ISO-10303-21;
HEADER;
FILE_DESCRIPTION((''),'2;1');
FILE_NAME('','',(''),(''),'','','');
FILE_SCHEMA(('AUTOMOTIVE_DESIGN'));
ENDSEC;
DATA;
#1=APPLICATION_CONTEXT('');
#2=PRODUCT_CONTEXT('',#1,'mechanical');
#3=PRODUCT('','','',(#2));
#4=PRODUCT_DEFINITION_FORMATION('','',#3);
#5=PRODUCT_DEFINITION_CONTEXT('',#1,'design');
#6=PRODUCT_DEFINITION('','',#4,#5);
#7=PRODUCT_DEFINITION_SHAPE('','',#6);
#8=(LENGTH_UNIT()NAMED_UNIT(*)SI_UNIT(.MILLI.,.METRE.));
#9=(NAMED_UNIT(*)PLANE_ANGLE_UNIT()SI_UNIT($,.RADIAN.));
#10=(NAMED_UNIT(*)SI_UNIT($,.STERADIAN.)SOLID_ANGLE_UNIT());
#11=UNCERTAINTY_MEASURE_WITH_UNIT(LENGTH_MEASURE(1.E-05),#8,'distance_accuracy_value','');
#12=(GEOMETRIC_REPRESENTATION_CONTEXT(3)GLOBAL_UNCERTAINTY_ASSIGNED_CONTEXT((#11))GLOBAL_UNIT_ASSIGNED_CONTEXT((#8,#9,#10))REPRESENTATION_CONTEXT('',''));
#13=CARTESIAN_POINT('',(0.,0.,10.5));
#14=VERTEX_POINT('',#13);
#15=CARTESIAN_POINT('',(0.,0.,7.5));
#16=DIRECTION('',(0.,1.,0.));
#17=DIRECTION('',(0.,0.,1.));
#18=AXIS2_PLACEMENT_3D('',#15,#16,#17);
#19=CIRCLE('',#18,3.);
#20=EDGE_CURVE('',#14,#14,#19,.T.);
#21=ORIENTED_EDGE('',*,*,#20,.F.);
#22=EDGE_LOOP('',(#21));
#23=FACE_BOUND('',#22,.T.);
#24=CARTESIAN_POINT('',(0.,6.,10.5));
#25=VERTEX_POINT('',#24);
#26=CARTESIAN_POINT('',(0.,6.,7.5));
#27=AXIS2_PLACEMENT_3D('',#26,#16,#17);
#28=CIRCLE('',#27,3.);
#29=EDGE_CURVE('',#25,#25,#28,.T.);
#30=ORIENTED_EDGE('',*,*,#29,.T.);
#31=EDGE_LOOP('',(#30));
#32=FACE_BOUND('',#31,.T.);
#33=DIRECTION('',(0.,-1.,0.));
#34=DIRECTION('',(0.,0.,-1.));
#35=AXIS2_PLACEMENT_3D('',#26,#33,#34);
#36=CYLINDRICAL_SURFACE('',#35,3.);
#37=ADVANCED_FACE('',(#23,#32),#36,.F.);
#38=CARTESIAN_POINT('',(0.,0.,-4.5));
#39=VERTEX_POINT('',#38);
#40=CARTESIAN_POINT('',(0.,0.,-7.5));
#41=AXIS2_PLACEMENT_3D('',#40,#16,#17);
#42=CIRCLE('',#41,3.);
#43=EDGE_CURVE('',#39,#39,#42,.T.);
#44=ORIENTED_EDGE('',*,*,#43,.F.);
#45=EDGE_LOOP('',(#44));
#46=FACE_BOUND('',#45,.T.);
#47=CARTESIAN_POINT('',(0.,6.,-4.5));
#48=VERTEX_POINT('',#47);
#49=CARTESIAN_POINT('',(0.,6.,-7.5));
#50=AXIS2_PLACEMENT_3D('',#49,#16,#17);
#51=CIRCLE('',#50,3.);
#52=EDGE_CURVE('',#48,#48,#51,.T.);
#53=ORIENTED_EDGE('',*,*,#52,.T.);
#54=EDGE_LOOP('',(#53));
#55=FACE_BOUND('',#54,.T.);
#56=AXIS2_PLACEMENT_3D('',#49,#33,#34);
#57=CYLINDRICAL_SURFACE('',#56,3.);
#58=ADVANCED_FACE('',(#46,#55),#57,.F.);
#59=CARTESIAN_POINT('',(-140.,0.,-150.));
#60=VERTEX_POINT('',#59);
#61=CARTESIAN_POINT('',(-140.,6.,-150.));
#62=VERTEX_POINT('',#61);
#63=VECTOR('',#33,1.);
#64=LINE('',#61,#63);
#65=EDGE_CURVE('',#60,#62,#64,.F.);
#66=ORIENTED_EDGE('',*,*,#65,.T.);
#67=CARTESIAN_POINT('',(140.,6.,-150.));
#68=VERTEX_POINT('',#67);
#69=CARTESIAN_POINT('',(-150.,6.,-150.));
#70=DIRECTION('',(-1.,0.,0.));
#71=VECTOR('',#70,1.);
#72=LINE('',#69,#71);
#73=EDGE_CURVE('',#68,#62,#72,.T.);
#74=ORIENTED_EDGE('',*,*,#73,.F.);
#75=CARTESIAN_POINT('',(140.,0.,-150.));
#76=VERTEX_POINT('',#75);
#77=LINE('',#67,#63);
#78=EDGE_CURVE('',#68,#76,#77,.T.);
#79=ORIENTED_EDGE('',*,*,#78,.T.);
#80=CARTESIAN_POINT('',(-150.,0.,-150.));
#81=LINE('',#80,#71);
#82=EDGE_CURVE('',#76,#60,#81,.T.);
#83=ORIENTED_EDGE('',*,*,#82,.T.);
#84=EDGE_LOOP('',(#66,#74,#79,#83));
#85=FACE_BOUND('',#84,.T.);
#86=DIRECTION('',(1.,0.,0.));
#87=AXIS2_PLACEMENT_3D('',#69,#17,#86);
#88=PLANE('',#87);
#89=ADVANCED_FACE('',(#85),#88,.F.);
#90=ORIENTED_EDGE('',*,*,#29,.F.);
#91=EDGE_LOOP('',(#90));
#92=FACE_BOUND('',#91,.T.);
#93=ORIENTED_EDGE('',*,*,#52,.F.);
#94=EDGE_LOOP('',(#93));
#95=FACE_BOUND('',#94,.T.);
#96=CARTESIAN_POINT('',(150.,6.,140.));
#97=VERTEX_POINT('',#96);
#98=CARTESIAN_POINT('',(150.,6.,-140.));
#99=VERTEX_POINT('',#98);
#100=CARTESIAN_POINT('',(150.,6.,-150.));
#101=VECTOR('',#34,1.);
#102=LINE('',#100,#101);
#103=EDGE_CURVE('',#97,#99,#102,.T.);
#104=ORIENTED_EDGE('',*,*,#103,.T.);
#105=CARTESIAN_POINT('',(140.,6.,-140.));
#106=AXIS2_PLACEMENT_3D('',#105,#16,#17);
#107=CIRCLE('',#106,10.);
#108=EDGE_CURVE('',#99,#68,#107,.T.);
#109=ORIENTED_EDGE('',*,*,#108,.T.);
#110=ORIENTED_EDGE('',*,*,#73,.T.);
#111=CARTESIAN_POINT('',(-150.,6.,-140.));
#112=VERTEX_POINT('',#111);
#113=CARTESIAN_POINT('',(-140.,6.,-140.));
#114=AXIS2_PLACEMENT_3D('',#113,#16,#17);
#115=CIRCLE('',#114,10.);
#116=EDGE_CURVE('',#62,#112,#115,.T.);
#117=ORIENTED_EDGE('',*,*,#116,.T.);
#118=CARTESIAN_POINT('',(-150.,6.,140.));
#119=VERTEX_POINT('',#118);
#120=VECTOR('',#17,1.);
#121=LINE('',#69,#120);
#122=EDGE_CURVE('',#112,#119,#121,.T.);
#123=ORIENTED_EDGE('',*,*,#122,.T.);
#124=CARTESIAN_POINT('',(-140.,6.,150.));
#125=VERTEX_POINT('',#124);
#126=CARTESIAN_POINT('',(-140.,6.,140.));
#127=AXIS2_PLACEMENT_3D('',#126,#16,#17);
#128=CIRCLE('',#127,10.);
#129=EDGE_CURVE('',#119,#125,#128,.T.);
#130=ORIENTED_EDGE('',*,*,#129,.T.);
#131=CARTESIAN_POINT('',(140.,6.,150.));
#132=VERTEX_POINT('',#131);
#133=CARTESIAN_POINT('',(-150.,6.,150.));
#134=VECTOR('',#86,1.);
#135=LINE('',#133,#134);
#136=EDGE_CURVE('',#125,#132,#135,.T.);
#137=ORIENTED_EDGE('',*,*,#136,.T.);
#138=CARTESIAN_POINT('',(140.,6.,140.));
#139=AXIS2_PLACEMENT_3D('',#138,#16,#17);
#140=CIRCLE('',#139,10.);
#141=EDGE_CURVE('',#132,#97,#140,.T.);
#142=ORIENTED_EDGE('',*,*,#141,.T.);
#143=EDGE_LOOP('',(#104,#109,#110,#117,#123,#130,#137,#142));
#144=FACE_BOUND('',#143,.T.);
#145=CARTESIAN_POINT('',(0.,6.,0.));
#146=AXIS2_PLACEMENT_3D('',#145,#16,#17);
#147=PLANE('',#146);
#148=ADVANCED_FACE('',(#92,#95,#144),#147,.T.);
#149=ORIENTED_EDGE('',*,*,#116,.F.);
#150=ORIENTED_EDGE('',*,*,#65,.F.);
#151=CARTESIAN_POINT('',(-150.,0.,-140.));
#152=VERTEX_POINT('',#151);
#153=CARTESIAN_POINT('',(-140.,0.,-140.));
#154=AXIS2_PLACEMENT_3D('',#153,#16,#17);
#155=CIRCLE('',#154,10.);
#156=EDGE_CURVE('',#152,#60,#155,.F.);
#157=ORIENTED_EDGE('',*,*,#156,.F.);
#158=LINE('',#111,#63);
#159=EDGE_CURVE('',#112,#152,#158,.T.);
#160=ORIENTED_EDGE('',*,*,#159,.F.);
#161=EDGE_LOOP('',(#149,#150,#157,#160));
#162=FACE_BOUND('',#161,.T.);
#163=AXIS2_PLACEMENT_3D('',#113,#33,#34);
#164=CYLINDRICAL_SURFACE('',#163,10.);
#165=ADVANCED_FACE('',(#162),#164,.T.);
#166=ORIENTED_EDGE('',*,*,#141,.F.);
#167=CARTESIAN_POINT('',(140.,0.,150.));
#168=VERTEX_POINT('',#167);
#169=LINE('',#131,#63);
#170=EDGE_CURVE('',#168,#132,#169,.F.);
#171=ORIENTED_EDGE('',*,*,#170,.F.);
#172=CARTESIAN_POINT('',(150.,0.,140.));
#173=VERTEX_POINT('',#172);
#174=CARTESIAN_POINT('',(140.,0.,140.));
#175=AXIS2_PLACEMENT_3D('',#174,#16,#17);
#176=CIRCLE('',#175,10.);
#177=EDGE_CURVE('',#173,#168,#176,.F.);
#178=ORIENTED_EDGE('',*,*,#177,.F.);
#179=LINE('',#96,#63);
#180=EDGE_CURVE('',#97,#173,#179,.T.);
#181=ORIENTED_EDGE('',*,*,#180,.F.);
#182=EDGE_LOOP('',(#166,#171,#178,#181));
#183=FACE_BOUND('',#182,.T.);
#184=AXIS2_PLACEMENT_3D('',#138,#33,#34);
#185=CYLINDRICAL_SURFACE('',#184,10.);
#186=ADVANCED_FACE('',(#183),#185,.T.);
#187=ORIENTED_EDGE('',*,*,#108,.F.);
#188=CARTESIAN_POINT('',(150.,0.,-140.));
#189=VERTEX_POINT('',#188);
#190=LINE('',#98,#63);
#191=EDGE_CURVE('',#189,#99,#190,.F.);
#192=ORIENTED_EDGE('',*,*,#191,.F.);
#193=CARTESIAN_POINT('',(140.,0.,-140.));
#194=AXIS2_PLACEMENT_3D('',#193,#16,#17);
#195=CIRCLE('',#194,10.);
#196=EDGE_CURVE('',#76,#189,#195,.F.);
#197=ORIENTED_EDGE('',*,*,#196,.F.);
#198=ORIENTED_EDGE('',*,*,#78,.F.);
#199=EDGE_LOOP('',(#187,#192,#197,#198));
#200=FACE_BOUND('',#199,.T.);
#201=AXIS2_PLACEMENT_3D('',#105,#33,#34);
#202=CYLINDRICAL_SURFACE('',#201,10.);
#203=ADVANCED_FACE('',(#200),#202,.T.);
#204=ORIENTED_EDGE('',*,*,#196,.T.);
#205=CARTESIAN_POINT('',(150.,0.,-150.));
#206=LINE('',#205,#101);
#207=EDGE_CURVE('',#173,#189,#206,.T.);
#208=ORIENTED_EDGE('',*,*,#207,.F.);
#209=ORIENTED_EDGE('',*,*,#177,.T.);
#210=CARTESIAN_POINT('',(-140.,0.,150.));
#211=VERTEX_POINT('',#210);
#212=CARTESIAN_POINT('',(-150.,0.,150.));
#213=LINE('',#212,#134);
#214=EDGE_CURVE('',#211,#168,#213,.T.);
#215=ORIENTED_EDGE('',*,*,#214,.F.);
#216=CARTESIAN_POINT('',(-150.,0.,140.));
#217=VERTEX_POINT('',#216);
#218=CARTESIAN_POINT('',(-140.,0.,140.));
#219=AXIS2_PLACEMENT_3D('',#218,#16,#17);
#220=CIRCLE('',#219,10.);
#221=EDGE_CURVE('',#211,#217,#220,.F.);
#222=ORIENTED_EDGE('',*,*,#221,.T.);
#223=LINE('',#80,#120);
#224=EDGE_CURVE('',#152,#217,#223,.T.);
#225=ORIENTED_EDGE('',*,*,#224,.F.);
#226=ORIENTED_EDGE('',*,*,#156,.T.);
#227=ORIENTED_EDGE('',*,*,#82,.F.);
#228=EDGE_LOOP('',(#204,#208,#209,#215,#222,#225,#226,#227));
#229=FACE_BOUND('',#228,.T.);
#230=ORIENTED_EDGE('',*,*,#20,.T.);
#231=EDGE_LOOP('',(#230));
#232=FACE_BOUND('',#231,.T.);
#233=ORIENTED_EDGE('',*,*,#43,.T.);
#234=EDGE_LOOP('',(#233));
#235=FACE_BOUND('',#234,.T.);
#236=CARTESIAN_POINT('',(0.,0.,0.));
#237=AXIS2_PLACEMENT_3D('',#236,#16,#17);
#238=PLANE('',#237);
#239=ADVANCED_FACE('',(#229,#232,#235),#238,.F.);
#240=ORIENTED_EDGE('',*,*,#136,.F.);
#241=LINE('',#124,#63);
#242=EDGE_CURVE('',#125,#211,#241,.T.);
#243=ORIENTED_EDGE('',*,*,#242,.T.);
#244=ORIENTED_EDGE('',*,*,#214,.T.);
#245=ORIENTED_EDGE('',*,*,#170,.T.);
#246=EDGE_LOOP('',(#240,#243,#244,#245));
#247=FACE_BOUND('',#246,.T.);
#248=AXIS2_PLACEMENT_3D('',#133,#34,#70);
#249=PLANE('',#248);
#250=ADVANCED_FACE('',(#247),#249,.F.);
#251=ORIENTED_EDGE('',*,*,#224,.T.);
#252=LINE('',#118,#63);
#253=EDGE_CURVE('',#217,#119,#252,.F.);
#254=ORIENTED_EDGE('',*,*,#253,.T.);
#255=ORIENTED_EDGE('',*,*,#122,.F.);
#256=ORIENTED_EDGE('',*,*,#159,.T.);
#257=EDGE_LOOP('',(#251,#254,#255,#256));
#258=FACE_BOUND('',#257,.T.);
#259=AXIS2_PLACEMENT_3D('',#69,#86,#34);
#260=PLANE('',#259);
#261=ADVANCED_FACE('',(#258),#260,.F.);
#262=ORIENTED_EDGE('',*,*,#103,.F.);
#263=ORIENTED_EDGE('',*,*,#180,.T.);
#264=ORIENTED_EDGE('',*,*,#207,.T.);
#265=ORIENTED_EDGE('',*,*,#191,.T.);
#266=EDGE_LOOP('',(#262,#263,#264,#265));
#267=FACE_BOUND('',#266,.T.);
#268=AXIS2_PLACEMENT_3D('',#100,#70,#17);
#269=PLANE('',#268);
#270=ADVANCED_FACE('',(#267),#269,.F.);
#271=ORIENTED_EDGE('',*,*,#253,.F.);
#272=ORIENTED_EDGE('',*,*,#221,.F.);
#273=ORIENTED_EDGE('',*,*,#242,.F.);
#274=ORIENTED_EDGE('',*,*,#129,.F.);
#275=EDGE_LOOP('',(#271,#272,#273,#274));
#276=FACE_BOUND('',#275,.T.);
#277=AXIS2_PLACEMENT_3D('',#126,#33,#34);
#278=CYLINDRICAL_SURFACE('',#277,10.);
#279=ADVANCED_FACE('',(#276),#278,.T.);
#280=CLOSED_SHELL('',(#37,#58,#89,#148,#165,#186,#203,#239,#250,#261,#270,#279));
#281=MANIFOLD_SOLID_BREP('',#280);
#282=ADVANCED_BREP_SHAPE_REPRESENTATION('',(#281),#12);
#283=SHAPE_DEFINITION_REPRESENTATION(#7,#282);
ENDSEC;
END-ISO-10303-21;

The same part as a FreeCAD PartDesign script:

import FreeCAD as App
import Part
import Sketcher

V = App.Vector


def edges_at(feature, points):
    """Names of the edges that pass closest to the given points."""
    edges = feature.Shape.Edges
    near = lambda p: min(range(len(edges)), key=lambda i: edges[i].distToShape(Part.Vertex(*p))[0])
    return sorted({f"Edge{near(p) + 1}" for p in points})


def add_polygon(sketch, points):
    """Adds a closed chain of lines whose ends are joined by coincident constraints."""
    first, n = sketch.GeometryCount, len(points)
    for a, b in zip(points, points[1:] + points[:1]):
        sketch.addGeometry(Part.LineSegment(App.Vector(*a, 0), App.Vector(*b, 0)), False)
    for i in range(n):
        sketch.addConstraint(Sketcher.Constraint("Coincident", first + i, 2, first + (i + 1) % n, 1))

doc = App.newDocument("Part")
body = doc.addObject("PartDesign::Body", "Body")

# Sketch on XZ plane
sketch1 = body.newObject("Sketcher::SketchObject", "Sketch")
sketch1.AttachmentSupport = (doc.getObject("XZ_Plane"), [""])
sketch1.MapMode = "FlatFace"
add_polygon(sketch1, [(-150, -150), (-150, 150), (150, 150), (150, -150)])  # lines 0-3
sketch1.addGeometry(Part.Circle(V(0, 7.5, 0), V(0, 0, 1), 3), False)  # 4
sketch1.addGeometry(Part.Circle(V(0, -7.5, 0), V(0, 0, 1), 3), False)  # 5
sketch1.addConstraint([
    Sketcher.Constraint("Vertical", 0),
    Sketcher.Constraint("Horizontal", 1),
    Sketcher.Constraint("Vertical", 2),
    Sketcher.Constraint("Horizontal", 3),
    Sketcher.Constraint("Equal", 4, 5),
    Sketcher.Constraint("Symmetric", 4, 3, 5, 3, -1, 1),
    Sketcher.Constraint("Symmetric", 0, 2, 2, 2, -1, 1),
    Sketcher.Constraint("PointOnObject", 4, 3, -2),
    Sketcher.Constraint("Equal", 3, 0),
    Sketcher.Constraint("Diameter", 4, 6.0),
    Sketcher.Constraint("DistanceX", 1, 1, 1, 2, 300.0),
    Sketcher.Constraint("DistanceY", 5, 3, 4, 3, 15.0),
])
pad1 = body.newObject("PartDesign::Pad", "Pad")
pad1.Profile = sketch1
pad1.Length = 6
pad1.Reversed = True
doc.recompute()

fillet = body.newObject("PartDesign::Fillet", "Fillet")
fillet.Base = (pad1, edges_at(pad1, [
    (-150, 3, -150),
    (150, 3, -150),
    (150, 3, 150),
    (-150, 3, 150),
]))
fillet.Radius = 10

doc.recompute()
